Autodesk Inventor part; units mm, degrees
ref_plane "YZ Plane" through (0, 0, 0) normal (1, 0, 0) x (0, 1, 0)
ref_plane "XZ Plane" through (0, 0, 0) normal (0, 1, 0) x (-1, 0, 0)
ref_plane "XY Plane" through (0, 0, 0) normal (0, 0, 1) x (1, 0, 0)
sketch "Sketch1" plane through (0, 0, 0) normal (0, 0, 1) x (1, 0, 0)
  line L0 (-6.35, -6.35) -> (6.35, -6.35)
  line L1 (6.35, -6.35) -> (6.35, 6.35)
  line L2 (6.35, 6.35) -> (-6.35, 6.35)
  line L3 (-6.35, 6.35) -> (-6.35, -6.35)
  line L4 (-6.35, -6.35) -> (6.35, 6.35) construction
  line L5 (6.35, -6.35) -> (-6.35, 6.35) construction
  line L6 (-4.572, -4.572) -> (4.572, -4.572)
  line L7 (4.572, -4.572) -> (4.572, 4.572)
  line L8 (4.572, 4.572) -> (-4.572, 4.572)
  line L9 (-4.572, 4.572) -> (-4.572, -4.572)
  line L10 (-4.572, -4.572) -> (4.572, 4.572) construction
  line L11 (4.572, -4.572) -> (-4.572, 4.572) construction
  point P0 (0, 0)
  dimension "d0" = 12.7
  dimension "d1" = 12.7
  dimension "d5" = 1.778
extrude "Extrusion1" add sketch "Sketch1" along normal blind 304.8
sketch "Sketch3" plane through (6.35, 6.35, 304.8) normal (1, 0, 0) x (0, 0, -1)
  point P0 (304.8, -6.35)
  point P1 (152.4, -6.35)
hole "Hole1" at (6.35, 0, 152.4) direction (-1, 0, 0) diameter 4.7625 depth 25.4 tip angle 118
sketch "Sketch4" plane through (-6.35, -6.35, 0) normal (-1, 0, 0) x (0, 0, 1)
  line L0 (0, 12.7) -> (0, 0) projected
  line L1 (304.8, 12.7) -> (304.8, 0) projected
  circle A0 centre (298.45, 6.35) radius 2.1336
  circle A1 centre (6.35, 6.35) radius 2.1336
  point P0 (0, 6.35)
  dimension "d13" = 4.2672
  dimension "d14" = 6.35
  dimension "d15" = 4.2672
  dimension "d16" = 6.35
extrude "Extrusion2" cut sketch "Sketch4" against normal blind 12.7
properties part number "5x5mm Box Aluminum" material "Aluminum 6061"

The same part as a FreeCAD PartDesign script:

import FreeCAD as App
import Part
import Sketcher
Q = App.Units.Quantity

doc = App.newDocument("Part")
body = doc.addObject("PartDesign::Body", "Body")

sketch1 = body.newObject("Sketcher::SketchObject", "Sketch")
sketch1.AttachmentSupport = (doc.getObject("XY_Plane"), [""])
sketch1.MapMode = "FlatFace"
sketch1.addGeometry(Part.LineSegment(App.Vector(-6, 6, 0), App.Vector(-6, -6, 0)), False)
sketch1.addGeometry(Part.LineSegment(App.Vector(-6, -6, 0), App.Vector(6, -6, 0)), False)
sketch1.addGeometry(Part.LineSegment(App.Vector(6, -6, 0), App.Vector(6, 6, 0)), False)
sketch1.addGeometry(Part.LineSegment(App.Vector(6, 6, 0), App.Vector(-6, 6, 0)), False)
sketch1.addGeometry(Part.LineSegment(App.Vector(5, -5, 0), App.Vector(-5, -5, 0)), False)
sketch1.addGeometry(Part.LineSegment(App.Vector(-5, -5, 0), App.Vector(-5, 5, 0)), False)
sketch1.addGeometry(Part.LineSegment(App.Vector(-5, 5, 0), App.Vector(5, 5, 0)), False)
sketch1.addGeometry(Part.LineSegment(App.Vector(5, 5, 0), App.Vector(5, -5, 0)), False)
sketch1.addConstraint(Sketcher.Constraint("Coincident", 0, 2, 1, 1))
sketch1.addConstraint(Sketcher.Constraint("Coincident", 1, 2, 2, 1))
sketch1.addConstraint(Sketcher.Constraint("Coincident", 2, 2, 3, 1))
sketch1.addConstraint(Sketcher.Constraint("Coincident", 3, 2, 0, 1))
sketch1.addConstraint(Sketcher.Constraint("Coincident", 4, 2, 5, 1))
sketch1.addConstraint(Sketcher.Constraint("Coincident", 5, 2, 6, 1))
sketch1.addConstraint(Sketcher.Constraint("Coincident", 6, 2, 7, 1))
sketch1.addConstraint(Sketcher.Constraint("Coincident", 7, 2, 4, 1))
sketch1.addConstraint(Sketcher.Constraint("Vertical", 0))
sketch1.addConstraint(Sketcher.Constraint("Horizontal", 1))
sketch1.addConstraint(Sketcher.Constraint("Vertical", 2))
sketch1.addConstraint(Sketcher.Constraint("Horizontal", 3))
sketch1.addConstraint(Sketcher.Constraint("Horizontal", 4))
sketch1.addConstraint(Sketcher.Constraint("Vertical", 5))
sketch1.addConstraint(Sketcher.Constraint("Horizontal", 6))
sketch1.addConstraint(Sketcher.Constraint("Vertical", 7))
sketch1.addConstraint(Sketcher.Constraint("Symmetric", 0, 2, 2, 2, -1, 1))
sketch1.addConstraint(Sketcher.Constraint("Symmetric", 4, 2, 6, 2, -1, 1))
sketch1.addConstraint(Sketcher.Constraint("Equal", 3, 0))
sketch1.addConstraint(Sketcher.Constraint("Equal", 6, 5))
sketch1.addConstraint(Sketcher.Constraint("DistanceX", 1, 1, 1, 2, Q("0.5 in")))
sketch1.addConstraint(Sketcher.Constraint("DistanceX", 0, 2, 4, 2, Q("0.07 in")))
pad1 = body.newObject("PartDesign::Pad", "Pad")
pad1.Profile = sketch1
pad1.Length = Q("12 in")

sketch2 = body.newObject("Sketcher::SketchObject", "Sketch001")
sketch2.AttachmentSupport = (doc.getObject("YZ_Plane"), [""])
sketch2.MapMode = "FlatFace"
sketch2.AttachmentOffset = App.Placement(App.Vector(0, 0, 0.25 * 25.4), App.Rotation())
sketch2.addGeometry(Part.Circle(App.Vector(0, 152.4, 0), App.Vector(0, 0, 1), 2.4), False)
sketch2.addConstraint(Sketcher.Constraint("PointOnObject", 0, 3, -2))
sketch2.addConstraint(Sketcher.Constraint("Diameter", 0, Q("0.1875 in")))
sketch2.addConstraint(Sketcher.Constraint("DistanceY", -1, 1, 0, 3, Q("6 in")))
doc.recompute()
hole = body.newObject("PartDesign::Hole", "Hole")
hole.Profile = sketch2
hole.ThreadType = "None"
hole.Diameter = Q("0.1875 in")
hole.DepthType = "Dimension"
hole.Depth = Q("1 in")
hole.DrillPoint = "Angled"
hole.DrillPointAngle = 118

sketch3 = body.newObject("Sketcher::SketchObject", "Sketch002")
sketch3.AttachmentSupport = (doc.getObject("YZ_Plane"), [""])
sketch3.MapMode = "FlatFace"
sketch3.AttachmentOffset = App.Placement(App.Vector(0, 0, -0.25 * 25.4), App.Rotation())
sketch3.addGeometry(Part.Circle(App.Vector(0, 298.4, 0), App.Vector(0, 0, 1), 2.1), False)
sketch3.addGeometry(Part.Circle(App.Vector(0, 6.3, 0), App.Vector(0, 0, 1), 2.1), False)
sketch3.addConstraint(Sketcher.Constraint("Equal", 0, 1))
sketch3.addConstraint(Sketcher.Constraint("PointOnObject", 0, 3, -2))
sketch3.addConstraint(Sketcher.Constraint("PointOnObject", 1, 3, -2))
sketch3.addConstraint(Sketcher.Constraint("Diameter", 0, Q("0.168 in")))
sketch3.addConstraint(Sketcher.Constraint("DistanceY", -1, 1, 1, 3, Q("0.25 in")))
sketch3.addConstraint(Sketcher.Constraint("DistanceY", 1, 3, 0, 3, Q("11.5 in")))
pocket1 = body.newObject("PartDesign::Pocket", "Pocket")
pocket1.Profile = sketch3
pocket1.Length = Q("0.5 in")
pocket1.Reversed = True

doc.recompute()
